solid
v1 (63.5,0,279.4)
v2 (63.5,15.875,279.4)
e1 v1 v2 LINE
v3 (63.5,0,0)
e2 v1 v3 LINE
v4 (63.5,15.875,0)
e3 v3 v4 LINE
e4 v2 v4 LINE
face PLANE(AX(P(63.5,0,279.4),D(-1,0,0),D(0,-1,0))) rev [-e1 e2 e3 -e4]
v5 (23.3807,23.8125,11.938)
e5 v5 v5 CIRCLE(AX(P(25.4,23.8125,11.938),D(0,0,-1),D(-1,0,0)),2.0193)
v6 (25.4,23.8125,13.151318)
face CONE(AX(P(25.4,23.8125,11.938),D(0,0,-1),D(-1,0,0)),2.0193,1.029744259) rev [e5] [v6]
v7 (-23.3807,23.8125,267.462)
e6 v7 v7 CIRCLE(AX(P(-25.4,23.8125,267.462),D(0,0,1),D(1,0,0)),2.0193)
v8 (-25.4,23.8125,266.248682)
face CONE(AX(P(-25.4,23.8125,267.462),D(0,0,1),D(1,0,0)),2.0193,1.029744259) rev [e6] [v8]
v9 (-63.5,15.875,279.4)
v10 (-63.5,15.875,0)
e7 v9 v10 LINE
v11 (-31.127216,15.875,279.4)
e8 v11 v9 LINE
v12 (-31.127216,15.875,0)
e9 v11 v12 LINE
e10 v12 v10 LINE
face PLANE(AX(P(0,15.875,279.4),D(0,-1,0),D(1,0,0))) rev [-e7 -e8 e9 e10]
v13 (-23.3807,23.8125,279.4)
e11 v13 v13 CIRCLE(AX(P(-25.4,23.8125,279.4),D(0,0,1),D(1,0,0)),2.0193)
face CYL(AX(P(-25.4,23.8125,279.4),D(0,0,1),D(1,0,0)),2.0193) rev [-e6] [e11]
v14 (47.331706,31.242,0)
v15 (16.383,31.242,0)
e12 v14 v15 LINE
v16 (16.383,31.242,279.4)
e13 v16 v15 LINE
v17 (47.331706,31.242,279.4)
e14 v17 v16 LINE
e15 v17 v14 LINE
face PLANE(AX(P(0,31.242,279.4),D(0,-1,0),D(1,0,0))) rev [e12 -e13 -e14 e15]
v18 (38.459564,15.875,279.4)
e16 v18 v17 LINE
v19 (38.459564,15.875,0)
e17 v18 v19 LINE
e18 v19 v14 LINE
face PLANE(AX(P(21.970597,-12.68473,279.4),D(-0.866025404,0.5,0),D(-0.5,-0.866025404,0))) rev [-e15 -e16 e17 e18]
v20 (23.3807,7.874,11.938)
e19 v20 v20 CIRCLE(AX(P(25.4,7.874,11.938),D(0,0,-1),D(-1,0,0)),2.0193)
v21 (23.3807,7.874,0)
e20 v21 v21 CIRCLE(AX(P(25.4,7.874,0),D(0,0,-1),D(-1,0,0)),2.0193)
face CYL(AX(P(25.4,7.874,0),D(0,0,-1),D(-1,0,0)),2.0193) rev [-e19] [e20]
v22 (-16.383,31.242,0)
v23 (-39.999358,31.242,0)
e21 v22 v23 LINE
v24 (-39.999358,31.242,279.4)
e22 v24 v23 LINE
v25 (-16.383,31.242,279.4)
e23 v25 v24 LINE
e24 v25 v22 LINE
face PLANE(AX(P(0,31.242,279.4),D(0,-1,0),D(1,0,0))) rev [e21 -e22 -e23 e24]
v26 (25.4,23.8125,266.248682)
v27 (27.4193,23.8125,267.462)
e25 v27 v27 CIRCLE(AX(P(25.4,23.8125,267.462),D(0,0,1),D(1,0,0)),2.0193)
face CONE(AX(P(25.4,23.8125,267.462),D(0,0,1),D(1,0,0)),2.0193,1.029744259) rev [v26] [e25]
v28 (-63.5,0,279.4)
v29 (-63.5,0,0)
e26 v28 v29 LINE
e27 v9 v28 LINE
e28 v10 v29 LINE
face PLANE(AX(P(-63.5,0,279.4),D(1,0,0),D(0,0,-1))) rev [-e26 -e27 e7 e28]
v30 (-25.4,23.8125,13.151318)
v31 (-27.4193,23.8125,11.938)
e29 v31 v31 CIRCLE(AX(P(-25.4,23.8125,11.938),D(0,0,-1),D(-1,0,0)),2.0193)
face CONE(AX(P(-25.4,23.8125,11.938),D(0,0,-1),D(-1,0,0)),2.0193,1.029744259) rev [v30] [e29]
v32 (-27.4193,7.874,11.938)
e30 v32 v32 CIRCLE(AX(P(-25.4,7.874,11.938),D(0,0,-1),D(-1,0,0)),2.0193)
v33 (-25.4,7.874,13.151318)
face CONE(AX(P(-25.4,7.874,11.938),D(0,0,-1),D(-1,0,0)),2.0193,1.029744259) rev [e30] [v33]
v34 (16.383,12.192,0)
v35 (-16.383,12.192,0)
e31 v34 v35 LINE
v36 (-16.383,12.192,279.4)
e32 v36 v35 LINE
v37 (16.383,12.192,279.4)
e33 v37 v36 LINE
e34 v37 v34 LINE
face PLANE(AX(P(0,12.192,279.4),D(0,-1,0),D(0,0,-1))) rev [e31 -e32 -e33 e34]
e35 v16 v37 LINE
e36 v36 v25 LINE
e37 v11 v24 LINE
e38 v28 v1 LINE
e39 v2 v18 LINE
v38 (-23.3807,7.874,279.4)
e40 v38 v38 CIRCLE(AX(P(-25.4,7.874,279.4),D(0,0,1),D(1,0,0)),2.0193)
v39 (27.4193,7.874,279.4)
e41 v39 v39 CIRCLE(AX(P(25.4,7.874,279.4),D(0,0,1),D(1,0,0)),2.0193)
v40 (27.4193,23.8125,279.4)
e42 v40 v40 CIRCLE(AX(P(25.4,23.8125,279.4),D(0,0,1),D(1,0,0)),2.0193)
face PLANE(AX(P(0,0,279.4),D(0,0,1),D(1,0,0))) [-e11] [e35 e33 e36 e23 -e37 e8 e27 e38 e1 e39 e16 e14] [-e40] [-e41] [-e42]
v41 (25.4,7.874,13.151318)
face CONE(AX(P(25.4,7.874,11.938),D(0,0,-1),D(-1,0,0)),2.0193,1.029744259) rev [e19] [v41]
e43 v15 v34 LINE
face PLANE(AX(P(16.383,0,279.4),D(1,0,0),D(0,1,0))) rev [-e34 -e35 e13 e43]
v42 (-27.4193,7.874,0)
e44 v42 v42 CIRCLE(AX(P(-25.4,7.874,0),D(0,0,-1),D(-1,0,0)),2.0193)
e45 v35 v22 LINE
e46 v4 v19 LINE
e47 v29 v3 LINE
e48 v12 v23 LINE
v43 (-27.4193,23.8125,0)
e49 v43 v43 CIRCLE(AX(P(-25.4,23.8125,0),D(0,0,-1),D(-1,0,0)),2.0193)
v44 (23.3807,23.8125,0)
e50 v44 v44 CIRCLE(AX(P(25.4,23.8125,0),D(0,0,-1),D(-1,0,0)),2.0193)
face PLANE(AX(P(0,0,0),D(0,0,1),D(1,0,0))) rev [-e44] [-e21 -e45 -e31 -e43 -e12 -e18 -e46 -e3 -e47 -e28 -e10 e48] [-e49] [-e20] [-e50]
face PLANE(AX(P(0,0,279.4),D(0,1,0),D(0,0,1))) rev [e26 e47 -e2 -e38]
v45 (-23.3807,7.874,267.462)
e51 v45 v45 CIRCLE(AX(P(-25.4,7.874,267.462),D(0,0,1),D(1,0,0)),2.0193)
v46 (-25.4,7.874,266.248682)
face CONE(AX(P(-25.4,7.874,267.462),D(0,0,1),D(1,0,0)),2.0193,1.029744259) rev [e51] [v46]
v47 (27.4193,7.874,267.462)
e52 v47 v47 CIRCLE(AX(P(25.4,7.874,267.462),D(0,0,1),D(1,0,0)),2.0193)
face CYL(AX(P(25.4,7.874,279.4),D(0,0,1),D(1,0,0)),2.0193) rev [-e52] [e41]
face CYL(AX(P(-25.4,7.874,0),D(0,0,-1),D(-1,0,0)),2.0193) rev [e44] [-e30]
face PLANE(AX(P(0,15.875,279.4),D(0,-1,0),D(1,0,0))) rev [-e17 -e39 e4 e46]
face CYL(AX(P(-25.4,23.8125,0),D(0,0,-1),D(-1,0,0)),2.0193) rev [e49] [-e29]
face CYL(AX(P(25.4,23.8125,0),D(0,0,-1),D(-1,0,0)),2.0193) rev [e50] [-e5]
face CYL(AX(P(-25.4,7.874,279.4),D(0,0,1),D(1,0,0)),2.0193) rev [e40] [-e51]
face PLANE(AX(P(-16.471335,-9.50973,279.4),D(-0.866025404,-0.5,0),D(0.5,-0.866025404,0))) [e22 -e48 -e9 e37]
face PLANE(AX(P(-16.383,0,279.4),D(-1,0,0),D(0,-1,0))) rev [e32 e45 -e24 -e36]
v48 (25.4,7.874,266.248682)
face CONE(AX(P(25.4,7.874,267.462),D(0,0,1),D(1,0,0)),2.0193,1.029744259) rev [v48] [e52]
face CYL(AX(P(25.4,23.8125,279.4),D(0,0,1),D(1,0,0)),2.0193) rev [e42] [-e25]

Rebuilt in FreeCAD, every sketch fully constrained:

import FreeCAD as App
import Part
import Sketcher
from FreeCAD import Vector
Q = App.Units.Quantity


def add_polygon(sketch, points):
    """Adds a closed chain of lines whose ends are joined by coincident constraints."""
    first, n = sketch.GeometryCount, len(points)
    for a, b in zip(points, points[1:] + points[:1]):
        sketch.addGeometry(Part.LineSegment(App.Vector(*a, 0), App.Vector(*b, 0)), False)
    for i in range(n):
        sketch.addConstraint(Sketcher.Constraint("Coincident", first + i, 2, first + (i + 1) % n, 1))

doc = App.newDocument("Part")
body = doc.addObject("PartDesign::Body", "Body")

# Sketch on XY plane
sketch1 = doc.addObject("Sketcher::SketchObject", "Sketch")
body.addObject(sketch1)
sketch1.AttachmentSupport = (doc.XY_Plane, [""])
sketch1.MapMode = "FlatFace"
add_polygon(sketch1, [(47, 31), (16, 31), (16, 12), (-16, 12), (-16, 31), (-40, 31), (-31, 16), (-64, 16), (-64, 0), (64, 0), (64, 16), (38, 16)])  # lines 0-11
sketch1.addConstraint([
    Sketcher.Constraint("Horizontal", 0),
    Sketcher.Constraint("Vertical", 1),
    Sketcher.Constraint("Horizontal", 2),
    Sketcher.Constraint("Vertical", 3),
    Sketcher.Constraint("Horizontal", 4),
    Sketcher.Constraint("Horizontal", 6),
    Sketcher.Constraint("Vertical", 7),
    Sketcher.Constraint("Horizontal", 8),
    Sketcher.Constraint("Vertical", 9),
    Sketcher.Constraint("Horizontal", 10),
    Sketcher.Constraint("Symmetric", 7, 2, 8, 2, -1, 1),
    Sketcher.Constraint("Symmetric", 0, 2, 3, 2, -2),
    Sketcher.Constraint("Horizontal", 6, 2, 9, 2),
    Sketcher.Constraint("Equal", 5, 11),
    Sketcher.Constraint("DistanceX", 8, 1, 8, 2, Q("5 in")),
    Sketcher.Constraint("Angle", 5, Q("-60 deg")),
    Sketcher.Constraint("DistanceX", 2, 2, 2, 1, Q("1.29 in")),
    Sketcher.Constraint("DistanceY", 1, 2, 1, 1, Q("0.75 in")),
    Sketcher.Constraint("DistanceY", 7, 2, 7, 1, Q("0.625 in")),
    Sketcher.Constraint("DistanceY", -1, 1, 0, 2, Q("1.23 in")),
    Sketcher.Constraint("DistanceX", 0, 2, 0, 1, 30.948706),
    Sketcher.Constraint("DistanceX", 4, 2, 4, 1, 23.616358),
])
pad1 = doc.addObject("PartDesign::Pad", "Pad")
body.addObject(pad1)
pad1.Profile = sketch1
pad1.Length = Q("11 in")

# Sketch on XY plane
sketch2 = doc.addObject("Sketcher::SketchObject", "Sketch001")
body.addObject(sketch2)
sketch2.AttachmentSupport = (doc.XY_Plane, [""])
sketch2.MapMode = "FlatFace"
sketch2.addGeometry([
    Part.Circle(Vector(25.4, 23.8, 0), Vector(0, 0, 1), 2),
    Part.Circle(Vector(-25.4, 23.8, 0), Vector(0, 0, 1), 2),
    Part.Circle(Vector(-25.4, 7.9, 0), Vector(0, 0, 1), 2),
    Part.Circle(Vector(25.4, 7.9, 0), Vector(0, 0, 1), 2),
], False)
sketch2.addConstraint([
    Sketcher.Constraint("Equal", 0, 1),
    Sketcher.Constraint("Equal", 1, 2),
    Sketcher.Constraint("Equal", 2, 3),
    Sketcher.Constraint("Symmetric", 0, 3, 1, 3, -2),
    Sketcher.Constraint("Symmetric", 2, 3, 3, 3, -2),
    Sketcher.Constraint("Vertical", 1, 3, 2, 3),
    Sketcher.Constraint("Diameter", 0, Q("0.159 in")),
    Sketcher.Constraint("DistanceX", -1, 1, 0, 3, Q("1 in")),
    Sketcher.Constraint("DistanceY", -1, 1, 2, 3, Q("0.31 in")),
    Sketcher.Constraint("DistanceY", -1, 1, 0, 3, Q("0.9375 in")),
])
doc.recompute()
hole = doc.addObject("PartDesign::Hole", "Hole")
body.addObject(hole)
hole.Profile = sketch2
hole.ThreadType = "None"
hole.Diameter = Q("0.159 in")
hole.DepthType = "Dimension"
hole.Depth = Q("0.47 in")
hole.DrillPoint = "Angled"
hole.DrillPointAngle = 118
hole.Reversed = True

# Sketch on XY plane
sketch3 = doc.addObject("Sketcher::SketchObject", "Sketch002")
body.addObject(sketch3)
sketch3.AttachmentSupport = (doc.XY_Plane, [""])
sketch3.MapMode = "FlatFace"
sketch3.AttachmentOffset = App.Placement(Vector(0, 0, 11 * 25.4), App.Rotation())
sketch3.addGeometry([
    Part.Circle(Vector(25.4, 23.8, 0), Vector(0, 0, 1), 2),
    Part.Circle(Vector(25.4, 7.9, 0), Vector(0, 0, 1), 2),
    Part.Circle(Vector(-25.4, 7.9, 0), Vector(0, 0, 1), 2),
    Part.Circle(Vector(-25.4, 23.8, 0), Vector(0, 0, 1), 2),
], False)
sketch3.addConstraint([
    Sketcher.Constraint("Equal", 0, 1),
    Sketcher.Constraint("Equal", 1, 2),
    Sketcher.Constraint("Equal", 2, 3),
    Sketcher.Constraint("Symmetric", 1, 3, 2, 3, -2),
    Sketcher.Constraint("Symmetric", 0, 3, 3, 3, -2),
    Sketcher.Constraint("Vertical", 0, 3, 1, 3),
    Sketcher.Constraint("Diameter", 0, Q("0.159 in")),
    Sketcher.Constraint("DistanceX", -1, 1, 0, 3, Q("1 in")),
    Sketcher.Constraint("DistanceY", -1, 1, 1, 3, Q("0.31 in")),
    Sketcher.Constraint("DistanceY", -1, 1, 0, 3, Q("0.9375 in")),
])
doc.recompute()
hole2 = doc.addObject("PartDesign::Hole", "Hole001")
body.addObject(hole2)
hole2.Profile = sketch3
hole2.ThreadType = "None"
hole2.Diameter = Q("0.159 in")
hole2.DepthType = "Dimension"
hole2.Depth = Q("0.47 in")
hole2.DrillPoint = "Angled"
hole2.DrillPointAngle = 118

doc.recompute()
